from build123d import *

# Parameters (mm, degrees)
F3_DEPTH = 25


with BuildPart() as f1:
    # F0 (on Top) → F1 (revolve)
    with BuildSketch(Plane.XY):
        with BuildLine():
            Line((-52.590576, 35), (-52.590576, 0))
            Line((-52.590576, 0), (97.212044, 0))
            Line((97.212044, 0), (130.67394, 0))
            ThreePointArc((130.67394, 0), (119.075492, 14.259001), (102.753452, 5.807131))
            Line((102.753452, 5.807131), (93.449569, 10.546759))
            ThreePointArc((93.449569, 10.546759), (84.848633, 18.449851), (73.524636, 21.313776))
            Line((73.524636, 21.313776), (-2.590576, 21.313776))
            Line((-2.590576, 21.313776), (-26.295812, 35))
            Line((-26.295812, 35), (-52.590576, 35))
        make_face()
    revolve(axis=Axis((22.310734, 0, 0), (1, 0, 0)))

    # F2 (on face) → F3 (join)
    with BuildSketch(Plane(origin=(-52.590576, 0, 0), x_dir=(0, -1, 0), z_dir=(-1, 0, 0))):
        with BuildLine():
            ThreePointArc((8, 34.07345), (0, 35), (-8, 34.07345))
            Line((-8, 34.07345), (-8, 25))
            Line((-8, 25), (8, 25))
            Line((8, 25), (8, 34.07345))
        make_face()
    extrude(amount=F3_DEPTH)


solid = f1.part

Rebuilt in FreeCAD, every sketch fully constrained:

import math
import FreeCAD as App
import Part
import Sketcher

V = App.Vector
Q = App.Units.Quantity

doc = App.newDocument("Part")
body = doc.addObject("PartDesign::Body", "Body")

sketch1 = body.newObject("Sketcher::SketchObject", "Sketch")
sketch1.AttachmentSupport = (doc.getObject("XY_Plane"), [""])
sketch1.MapMode = "FlatFace"
sketch1.addGeometry([
    Part.LineSegment(V(-52.590576, 35, 0), V(-52.590576, 0, 0)),
    Part.LineSegment(V(-52.590576, 0, 0), V(130.67394, 0, 0)),
    Part.ArcOfCircle(Part.Circle(V(116.109789, 0, 0), V(0, 0, 1), 14.564151), math.radians(-0.000001), math.radians(156.501334)),
    Part.LineSegment(V(102.753452, 5.807131, 0), V(93.449569, 10.546759, 0)),
    Part.ArcOfCircle(Part.Circle(V(73.524636, -2.505802, 0), V(0, 0, 1), 23.819578), math.radians(33.22828), math.radians(90.000001)),
    Part.LineSegment(V(73.524636, 21.313776, 0), V(-2.590576, 21.313776, 0)),
    Part.LineSegment(V(-2.590576, 21.313776, 0), V(-26.295812, 35, 0)),
    Part.LineSegment(V(-26.295812, 35, 0), V(-52.590576, 35, 0)),
], False)
sketch1.addConstraint([
    Sketcher.Constraint("Coincident", 0, 2, 1, 1),
    Sketcher.Constraint("Coincident", 1, 2, 2, 1),
    Sketcher.Constraint("Coincident", 2, 2, 3, 1),
    Sketcher.Constraint("Coincident", 3, 2, 4, 1),
    Sketcher.Constraint("Tangent", 4, 2, 5, 1),
    Sketcher.Constraint("Coincident", 5, 2, 6, 1),
    Sketcher.Constraint("Coincident", 6, 2, 7, 1),
    Sketcher.Constraint("Coincident", 7, 2, 0, 1),
    Sketcher.Constraint("Vertical", 0),
    Sketcher.Constraint("Horizontal", 1),
    Sketcher.Constraint("Horizontal", 5),
    Sketcher.Constraint("Horizontal", 7),
    Sketcher.Constraint("PointOnObject", 2, 3, -1),
    Sketcher.Constraint("PointOnObject", 0, 2, -1),
    Sketcher.Constraint("DistanceY", 0, 2, 0, 1, Q("35 mm")),
    Sketcher.Constraint("Angle", 6, Q("150.000001 deg")),
    Sketcher.Constraint("DistanceX", 0, 2, 5, 2, Q("50 mm")),
    Sketcher.Constraint("Radius", 2, Q("14.564151 mm")),
    Sketcher.Constraint("Radius", 4, Q("23.819578 mm")),
    Sketcher.Constraint("DistanceX", 5, 2, 5, 1, Q("76.115212 mm")),
    Sketcher.Constraint("DistanceY", 4, 3, -1, 1, Q("2.505802 mm")),
    Sketcher.Constraint("DistanceX", 1, 1, 1, 2, Q("183.264516 mm")),
    Sketcher.Constraint("DistanceX", -1, 1, 2, 3, Q("116.109789 mm")),
    Sketcher.Constraint("DistanceY", -1, 1, 2, 2, Q("5.807131 mm")),
    Sketcher.Constraint("DistanceX", -1, 1, 3, 2, Q("93.449569 mm")),
])
revolution = body.newObject("PartDesign::Revolution", "Revolution")
revolution.Profile = sketch1
revolution.ReferenceAxis = (sketch1, ["H_Axis"])
revolution.Angle = 360

sketch2 = body.newObject("Sketcher::SketchObject", "Sketch001")
sketch2.AttachmentSupport = (doc.getObject("YZ_Plane"), [""])
sketch2.MapMode = "FlatFace"
sketch2.AttachmentOffset = App.Placement(V(0, 0, -52.590576), App.Rotation())
sketch2.addGeometry([
    Part.ArcOfCircle(Part.Circle(V(0, 0.000003, 0), V(0, 0, 1), 34.999997), math.radians(76.787019), math.radians(103.212981)),
    Part.LineSegment(V(8, 34.07345, 0), V(8, 25, 0)),
    Part.LineSegment(V(8, 25, 0), V(-8, 25, 0)),
    Part.LineSegment(V(-8, 25, 0), V(-8, 34.07345, 0)),
], False)
sketch2.addConstraint([
    Sketcher.Constraint("Coincident", 0, 1, 1, 1),
    Sketcher.Constraint("Coincident", 1, 2, 2, 1),
    Sketcher.Constraint("Coincident", 2, 2, 3, 1),
    Sketcher.Constraint("Coincident", 3, 2, 0, 2),
    Sketcher.Constraint("Vertical", 1),
    Sketcher.Constraint("Horizontal", 2),
    Sketcher.Constraint("Vertical", 3),
    Sketcher.Constraint("Coincident", 0, 3, -1, 1),
    Sketcher.Constraint("Horizontal", 0, 1, 3, 2),
    Sketcher.Constraint("DistanceX", 2, 2, 2, 1, Q("16 mm")),
    Sketcher.Constraint("DistanceY", -1, 1, 1, 2, Q("25 mm")),
    Sketcher.Constraint("Radius", 0, Q("34.999997 mm")),
])
pad1 = body.newObject("PartDesign::Pad", "Pad")
pad1.Profile = sketch2
pad1.Length = 25
pad1.Reversed = True

doc.recompute()
